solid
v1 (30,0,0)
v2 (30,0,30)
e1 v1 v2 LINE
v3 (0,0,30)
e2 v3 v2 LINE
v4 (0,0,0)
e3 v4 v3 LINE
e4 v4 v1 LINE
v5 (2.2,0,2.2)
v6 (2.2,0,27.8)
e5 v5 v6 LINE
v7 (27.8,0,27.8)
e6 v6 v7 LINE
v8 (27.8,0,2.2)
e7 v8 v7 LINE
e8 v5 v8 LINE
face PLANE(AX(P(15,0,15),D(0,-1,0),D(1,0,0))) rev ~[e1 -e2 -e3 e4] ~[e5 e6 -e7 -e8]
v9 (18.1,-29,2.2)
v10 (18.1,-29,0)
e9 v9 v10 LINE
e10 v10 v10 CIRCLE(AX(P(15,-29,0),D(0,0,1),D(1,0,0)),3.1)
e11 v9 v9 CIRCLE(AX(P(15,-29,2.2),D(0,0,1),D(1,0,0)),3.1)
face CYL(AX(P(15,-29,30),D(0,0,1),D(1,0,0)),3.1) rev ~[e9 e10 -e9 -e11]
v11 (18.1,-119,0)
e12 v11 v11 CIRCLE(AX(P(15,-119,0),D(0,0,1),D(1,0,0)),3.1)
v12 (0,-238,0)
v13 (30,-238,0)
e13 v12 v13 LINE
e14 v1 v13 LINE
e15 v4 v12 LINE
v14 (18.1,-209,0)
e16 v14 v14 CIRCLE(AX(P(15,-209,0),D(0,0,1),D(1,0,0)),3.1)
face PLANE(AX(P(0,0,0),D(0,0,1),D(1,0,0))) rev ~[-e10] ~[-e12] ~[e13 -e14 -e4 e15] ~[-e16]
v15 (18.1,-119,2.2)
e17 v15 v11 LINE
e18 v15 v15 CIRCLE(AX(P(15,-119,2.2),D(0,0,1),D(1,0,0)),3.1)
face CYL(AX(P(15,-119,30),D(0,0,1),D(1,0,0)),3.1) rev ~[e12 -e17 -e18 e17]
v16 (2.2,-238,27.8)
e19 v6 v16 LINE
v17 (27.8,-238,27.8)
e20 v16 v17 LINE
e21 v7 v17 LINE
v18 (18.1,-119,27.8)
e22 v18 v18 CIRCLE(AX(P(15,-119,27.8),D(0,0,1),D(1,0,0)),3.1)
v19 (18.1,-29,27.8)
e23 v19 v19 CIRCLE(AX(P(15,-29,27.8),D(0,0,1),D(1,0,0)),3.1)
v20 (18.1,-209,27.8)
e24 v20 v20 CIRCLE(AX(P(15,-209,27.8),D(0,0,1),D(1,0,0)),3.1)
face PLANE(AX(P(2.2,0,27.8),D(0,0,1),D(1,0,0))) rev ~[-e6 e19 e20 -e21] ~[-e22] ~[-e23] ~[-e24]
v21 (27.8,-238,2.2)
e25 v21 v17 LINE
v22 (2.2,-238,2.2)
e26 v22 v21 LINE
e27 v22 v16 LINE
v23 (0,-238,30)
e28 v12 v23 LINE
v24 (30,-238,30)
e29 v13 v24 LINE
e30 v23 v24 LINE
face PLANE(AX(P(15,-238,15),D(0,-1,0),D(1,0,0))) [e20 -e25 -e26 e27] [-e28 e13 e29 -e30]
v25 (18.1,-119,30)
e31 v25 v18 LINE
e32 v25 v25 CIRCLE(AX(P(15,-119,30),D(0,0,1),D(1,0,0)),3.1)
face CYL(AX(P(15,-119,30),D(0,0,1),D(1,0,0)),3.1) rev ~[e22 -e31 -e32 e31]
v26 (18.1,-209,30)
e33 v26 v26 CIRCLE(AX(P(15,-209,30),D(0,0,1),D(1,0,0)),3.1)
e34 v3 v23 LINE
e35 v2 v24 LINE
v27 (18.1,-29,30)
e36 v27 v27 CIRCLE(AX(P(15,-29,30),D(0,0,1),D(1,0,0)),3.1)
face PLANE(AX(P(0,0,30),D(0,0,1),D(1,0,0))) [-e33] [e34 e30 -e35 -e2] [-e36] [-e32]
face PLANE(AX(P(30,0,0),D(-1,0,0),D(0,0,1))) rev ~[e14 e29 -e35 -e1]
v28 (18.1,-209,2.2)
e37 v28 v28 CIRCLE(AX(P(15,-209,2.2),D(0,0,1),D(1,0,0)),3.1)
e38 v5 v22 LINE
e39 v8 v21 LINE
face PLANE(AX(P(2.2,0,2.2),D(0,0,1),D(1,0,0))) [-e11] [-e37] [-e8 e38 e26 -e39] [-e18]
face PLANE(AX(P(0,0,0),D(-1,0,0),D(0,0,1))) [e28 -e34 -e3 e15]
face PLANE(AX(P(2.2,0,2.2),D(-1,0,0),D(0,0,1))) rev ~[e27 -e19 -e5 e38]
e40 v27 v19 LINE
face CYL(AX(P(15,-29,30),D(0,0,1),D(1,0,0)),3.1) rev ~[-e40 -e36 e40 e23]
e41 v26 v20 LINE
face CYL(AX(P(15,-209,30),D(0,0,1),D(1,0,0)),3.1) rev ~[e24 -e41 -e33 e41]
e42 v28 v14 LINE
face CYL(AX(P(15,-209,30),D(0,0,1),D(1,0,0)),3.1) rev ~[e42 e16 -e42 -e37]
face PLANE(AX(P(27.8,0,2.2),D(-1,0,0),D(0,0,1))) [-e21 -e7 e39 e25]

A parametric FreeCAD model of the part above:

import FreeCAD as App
import Part
import Sketcher


def add_polygon(sketch, points):
    """Adds a closed chain of lines whose ends are joined by coincident constraints."""
    first, n = sketch.GeometryCount, len(points)
    for a, b in zip(points, points[1:] + points[:1]):
        sketch.addGeometry(Part.LineSegment(App.Vector(*a, 0), App.Vector(*b, 0)), False)
    for i in range(n):
        sketch.addConstraint(Sketcher.Constraint("Coincident", first + i, 2, first + (i + 1) % n, 1))

doc = App.newDocument("Part")
params = doc.addObject("Spreadsheet::Sheet", "Params")
for row, (alias, value) in enumerate([
    ("sketch1_width", "30 mm"),
    ("sketch1_width2", "25.6 mm"),
    ("pad1_length", "238 mm"),
    ("sketch2_diameter", "6.2 mm"),
    ("pocket1_length", "35 mm"),
], start=1):
    params.set(f"A{row}", alias)
    params.set(f"B{row}", "=" + value)
    params.setAlias(f"B{row}", alias)

body = doc.addObject("PartDesign::Body", "Body")

# Sketch on XZ plane
sketch1 = doc.addObject("Sketcher::SketchObject", "Sketch")
body.addObject(sketch1)
sketch1.AttachmentSupport = (doc.XZ_Plane, [""])
sketch1.MapMode = "FlatFace"
add_polygon(sketch1, [(0, 30), (0, 0), (30, 0), (30, 30)])  # lines 0-3
add_polygon(sketch1, [(27.8, 2.2), (2.2, 2.2), (2.2, 27.8), (27.8, 27.8)])  # lines 4-7
sketch1.addConstraint(Sketcher.Constraint("Vertical", 0))
sketch1.addConstraint(Sketcher.Constraint("Horizontal", 1))
sketch1.addConstraint(Sketcher.Constraint("Vertical", 2))
sketch1.addConstraint(Sketcher.Constraint("Horizontal", 3))
sketch1.addConstraint(Sketcher.Constraint("Horizontal", 4))
sketch1.addConstraint(Sketcher.Constraint("Vertical", 5))
sketch1.addConstraint(Sketcher.Constraint("Horizontal", 6))
sketch1.addConstraint(Sketcher.Constraint("Vertical", 7))
sketch1.addConstraint(Sketcher.Constraint("Coincident", 0, 2, -1, 1))
sketch1.addConstraint(Sketcher.Constraint("Equal", 3, 0))
sketch1.addConstraint(Sketcher.Constraint("Equal", 6, 5))
sketch1.addConstraint(Sketcher.Constraint("DistanceX", 1, 1, 1, 2, 30.0))
sketch1.addConstraint(Sketcher.Constraint("DistanceX", 4, 2, 4, 1, 25.6))
sketch1.addConstraint(Sketcher.Constraint("DistanceX", -1, 1, 4, 2, 2.2))
sketch1.addConstraint(Sketcher.Constraint("DistanceY", -1, 1, 4, 2, 2.2))
sketch1.setExpression("Constraints[19]", "Params.sketch1_width")
sketch1.setExpression("Constraints[20]", "Params.sketch1_width2")
pad1 = doc.addObject("PartDesign::Pad", "Pad")
body.addObject(pad1)
pad1.Profile = sketch1
pad1.setExpression("Length", "Params.pad1_length")

# Sketch on XY plane
sketch2 = doc.addObject("Sketcher::SketchObject", "Sketch001")
body.addObject(sketch2)
sketch2.AttachmentSupport = (doc.XY_Plane, [""])
sketch2.MapMode = "FlatFace"
sketch2.AttachmentOffset = App.Placement(App.Vector(0, 0, 30), App.Rotation())
sketch2.addGeometry(Part.Circle(App.Vector(15, -29, 0), App.Vector(0, 0, 1), 3.1), False)
sketch2.addGeometry(Part.Circle(App.Vector(15, -119, 0), App.Vector(0, 0, 1), 3.1), False)
sketch2.addGeometry(Part.Circle(App.Vector(15, -209, 0), App.Vector(0, 0, 1), 3.1), False)
sketch2.addConstraint(Sketcher.Constraint("Equal", 0, 1))
sketch2.addConstraint(Sketcher.Constraint("Equal", 1, 2))
sketch2.addConstraint(Sketcher.Constraint("Vertical", 0, 3, 1, 3))
sketch2.addConstraint(Sketcher.Constraint("Vertical", 1, 3, 2, 3))
sketch2.addConstraint(Sketcher.Constraint("Diameter", 0, 6.2))
sketch2.addConstraint(Sketcher.Constraint("DistanceX", -1, 1, 0, 3, 15.0))
sketch2.addConstraint(Sketcher.Constraint("DistanceY", 0, 3, -1, 1, 29.0))
sketch2.addConstraint(Sketcher.Constraint("DistanceY", 1, 3, -1, 1, 119.0))
sketch2.addConstraint(Sketcher.Constraint("DistanceY", 2, 3, -1, 1, 209.0))
sketch2.setExpression("Constraints[4]", "Params.sketch2_diameter")
pocket1 = doc.addObject("PartDesign::Pocket", "Pocket")
body.addObject(pocket1)
pocket1.Profile = sketch2
pocket1.setExpression("Length", "Params.pocket1_length")

doc.recompute()
